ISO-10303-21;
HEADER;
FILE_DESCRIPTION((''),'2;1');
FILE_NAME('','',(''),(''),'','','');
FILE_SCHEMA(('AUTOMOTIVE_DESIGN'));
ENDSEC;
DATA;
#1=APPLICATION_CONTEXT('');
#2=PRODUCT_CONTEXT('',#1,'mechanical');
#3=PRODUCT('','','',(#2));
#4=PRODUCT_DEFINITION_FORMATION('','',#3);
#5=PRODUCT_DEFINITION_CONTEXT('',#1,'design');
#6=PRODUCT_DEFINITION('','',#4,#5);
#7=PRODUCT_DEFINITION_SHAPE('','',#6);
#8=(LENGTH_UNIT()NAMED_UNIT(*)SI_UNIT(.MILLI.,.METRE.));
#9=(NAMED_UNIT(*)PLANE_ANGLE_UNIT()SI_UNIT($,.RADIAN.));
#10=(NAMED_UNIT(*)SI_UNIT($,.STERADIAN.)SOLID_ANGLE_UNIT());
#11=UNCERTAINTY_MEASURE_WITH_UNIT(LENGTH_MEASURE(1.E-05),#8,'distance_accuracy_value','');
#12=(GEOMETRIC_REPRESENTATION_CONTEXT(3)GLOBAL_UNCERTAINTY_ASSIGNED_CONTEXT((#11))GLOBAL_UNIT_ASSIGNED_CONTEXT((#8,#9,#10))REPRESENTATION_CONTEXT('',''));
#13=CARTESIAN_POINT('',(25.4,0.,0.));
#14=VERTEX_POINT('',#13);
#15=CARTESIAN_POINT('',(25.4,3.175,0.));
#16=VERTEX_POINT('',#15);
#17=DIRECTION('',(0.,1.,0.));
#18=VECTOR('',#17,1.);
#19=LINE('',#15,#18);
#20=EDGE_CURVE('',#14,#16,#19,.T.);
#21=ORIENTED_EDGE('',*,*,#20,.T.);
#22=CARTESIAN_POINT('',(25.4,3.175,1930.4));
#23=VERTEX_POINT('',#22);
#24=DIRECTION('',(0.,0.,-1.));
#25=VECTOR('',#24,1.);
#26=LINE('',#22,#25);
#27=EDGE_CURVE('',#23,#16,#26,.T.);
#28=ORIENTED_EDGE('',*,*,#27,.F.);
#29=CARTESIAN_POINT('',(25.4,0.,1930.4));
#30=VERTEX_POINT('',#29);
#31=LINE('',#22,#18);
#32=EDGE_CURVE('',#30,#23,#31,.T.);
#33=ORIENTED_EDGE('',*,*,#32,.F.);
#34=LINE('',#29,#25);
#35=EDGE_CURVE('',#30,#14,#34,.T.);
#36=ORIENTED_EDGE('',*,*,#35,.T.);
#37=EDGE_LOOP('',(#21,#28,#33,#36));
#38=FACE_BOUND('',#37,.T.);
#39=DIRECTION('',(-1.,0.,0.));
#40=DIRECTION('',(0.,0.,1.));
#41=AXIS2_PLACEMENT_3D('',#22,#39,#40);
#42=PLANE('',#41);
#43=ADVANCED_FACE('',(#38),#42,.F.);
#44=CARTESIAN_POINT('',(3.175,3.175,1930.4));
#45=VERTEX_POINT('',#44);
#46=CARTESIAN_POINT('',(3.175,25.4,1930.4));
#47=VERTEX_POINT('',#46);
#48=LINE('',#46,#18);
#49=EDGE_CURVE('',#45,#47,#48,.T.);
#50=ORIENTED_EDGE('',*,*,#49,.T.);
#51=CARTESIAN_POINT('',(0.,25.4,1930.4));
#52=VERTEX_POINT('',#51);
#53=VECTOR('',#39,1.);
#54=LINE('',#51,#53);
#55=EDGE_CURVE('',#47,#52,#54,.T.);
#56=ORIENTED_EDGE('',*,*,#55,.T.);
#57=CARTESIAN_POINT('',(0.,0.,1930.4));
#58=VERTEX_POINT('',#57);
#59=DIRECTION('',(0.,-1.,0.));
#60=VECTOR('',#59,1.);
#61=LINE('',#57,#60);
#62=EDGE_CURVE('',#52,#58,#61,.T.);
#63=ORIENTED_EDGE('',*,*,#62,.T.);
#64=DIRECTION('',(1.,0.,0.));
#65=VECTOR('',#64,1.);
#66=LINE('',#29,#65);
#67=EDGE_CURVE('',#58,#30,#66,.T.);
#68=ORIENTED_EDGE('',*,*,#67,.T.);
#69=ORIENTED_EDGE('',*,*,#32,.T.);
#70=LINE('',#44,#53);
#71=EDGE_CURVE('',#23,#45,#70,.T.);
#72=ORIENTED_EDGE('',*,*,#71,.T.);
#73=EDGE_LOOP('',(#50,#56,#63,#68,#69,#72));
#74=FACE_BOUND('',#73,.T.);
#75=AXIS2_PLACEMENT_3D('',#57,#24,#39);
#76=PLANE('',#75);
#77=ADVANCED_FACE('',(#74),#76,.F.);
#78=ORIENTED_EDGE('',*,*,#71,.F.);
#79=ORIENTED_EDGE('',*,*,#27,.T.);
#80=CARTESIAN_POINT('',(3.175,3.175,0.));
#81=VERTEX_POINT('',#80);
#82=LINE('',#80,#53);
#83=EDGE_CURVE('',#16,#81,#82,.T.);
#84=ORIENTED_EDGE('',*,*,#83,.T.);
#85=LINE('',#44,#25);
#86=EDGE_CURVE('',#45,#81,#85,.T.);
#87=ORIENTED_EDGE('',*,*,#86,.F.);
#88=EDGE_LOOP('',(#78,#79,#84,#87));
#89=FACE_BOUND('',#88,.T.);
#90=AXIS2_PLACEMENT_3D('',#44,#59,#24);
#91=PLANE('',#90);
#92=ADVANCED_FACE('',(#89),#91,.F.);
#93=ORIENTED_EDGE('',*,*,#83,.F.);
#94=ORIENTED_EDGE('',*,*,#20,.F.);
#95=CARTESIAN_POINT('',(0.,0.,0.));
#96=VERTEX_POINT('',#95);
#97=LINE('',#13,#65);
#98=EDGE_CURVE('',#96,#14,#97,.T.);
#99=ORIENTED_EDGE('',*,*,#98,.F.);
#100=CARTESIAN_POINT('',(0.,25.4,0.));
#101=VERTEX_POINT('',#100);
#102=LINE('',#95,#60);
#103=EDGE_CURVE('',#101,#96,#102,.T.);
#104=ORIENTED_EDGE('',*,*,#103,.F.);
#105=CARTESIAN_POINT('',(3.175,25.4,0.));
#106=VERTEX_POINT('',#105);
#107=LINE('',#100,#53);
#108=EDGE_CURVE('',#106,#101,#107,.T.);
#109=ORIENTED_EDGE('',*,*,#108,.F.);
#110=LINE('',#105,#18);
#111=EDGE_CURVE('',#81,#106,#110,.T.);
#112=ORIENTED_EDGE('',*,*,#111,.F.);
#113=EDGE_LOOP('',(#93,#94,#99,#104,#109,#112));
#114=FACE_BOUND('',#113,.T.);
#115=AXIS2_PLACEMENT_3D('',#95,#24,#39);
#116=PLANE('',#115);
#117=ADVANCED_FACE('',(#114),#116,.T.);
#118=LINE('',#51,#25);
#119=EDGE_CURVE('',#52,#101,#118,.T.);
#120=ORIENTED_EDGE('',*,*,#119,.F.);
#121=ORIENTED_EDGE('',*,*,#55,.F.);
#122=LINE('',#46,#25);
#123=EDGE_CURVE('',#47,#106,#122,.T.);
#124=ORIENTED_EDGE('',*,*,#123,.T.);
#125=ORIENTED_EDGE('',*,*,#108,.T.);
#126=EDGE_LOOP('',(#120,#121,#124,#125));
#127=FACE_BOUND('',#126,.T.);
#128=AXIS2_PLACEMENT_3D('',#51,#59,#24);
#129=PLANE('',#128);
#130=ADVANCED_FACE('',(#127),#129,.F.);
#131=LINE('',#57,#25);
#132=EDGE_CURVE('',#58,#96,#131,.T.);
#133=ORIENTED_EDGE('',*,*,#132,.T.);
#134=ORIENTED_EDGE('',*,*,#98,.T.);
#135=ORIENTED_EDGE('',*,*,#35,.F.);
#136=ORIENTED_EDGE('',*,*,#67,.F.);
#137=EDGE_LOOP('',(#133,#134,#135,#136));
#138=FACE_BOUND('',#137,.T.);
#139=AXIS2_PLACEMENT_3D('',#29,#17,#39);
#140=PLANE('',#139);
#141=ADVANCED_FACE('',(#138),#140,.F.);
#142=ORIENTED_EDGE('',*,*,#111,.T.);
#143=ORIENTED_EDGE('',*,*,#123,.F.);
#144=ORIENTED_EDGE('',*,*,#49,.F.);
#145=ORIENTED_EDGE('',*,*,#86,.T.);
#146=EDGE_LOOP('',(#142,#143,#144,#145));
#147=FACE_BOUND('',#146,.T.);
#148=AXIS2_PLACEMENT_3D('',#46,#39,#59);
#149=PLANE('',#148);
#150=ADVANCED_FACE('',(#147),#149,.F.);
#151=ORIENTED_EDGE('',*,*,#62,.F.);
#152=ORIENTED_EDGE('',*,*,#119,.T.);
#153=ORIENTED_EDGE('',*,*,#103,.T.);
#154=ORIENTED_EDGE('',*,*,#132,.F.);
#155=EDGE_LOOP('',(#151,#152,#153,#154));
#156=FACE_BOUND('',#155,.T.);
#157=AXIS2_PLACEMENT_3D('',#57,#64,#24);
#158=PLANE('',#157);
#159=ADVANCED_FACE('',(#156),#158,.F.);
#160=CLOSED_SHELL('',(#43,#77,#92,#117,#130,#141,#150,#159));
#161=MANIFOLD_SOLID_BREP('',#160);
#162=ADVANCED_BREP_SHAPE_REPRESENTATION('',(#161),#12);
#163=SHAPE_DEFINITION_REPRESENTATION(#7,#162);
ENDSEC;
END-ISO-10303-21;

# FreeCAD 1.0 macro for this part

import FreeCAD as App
import Part
import Sketcher
Q = App.Units.Quantity

doc = App.newDocument("Part")
body = doc.addObject("PartDesign::Body", "Body")

sketch1 = doc.addObject("Sketcher::SketchObject", "Sketch")
body.addObject(sketch1)
sketch1.AttachmentSupport = (doc.XY_Plane, [""])
sketch1.MapMode = "FlatFace"
sketch1.addGeometry([
    Part.LineSegment(App.Vector(0, 25.4, 0), App.Vector(0, 0, 0)),
    Part.LineSegment(App.Vector(0, 0, 0), App.Vector(25.4, 0, 0)),
    Part.LineSegment(App.Vector(25.4, 0, 0), App.Vector(25.4, 3.2, 0)),
    Part.LineSegment(App.Vector(25.4, 3.2, 0), App.Vector(3.2, 3.2, 0)),
    Part.LineSegment(App.Vector(3.2, 3.2, 0), App.Vector(3.2, 25.4, 0)),
    Part.LineSegment(App.Vector(3.2, 25.4, 0), App.Vector(0, 25.4, 0)),
], False)
sketch1.addConstraint([
    Sketcher.Constraint("Coincident", 0, 2, 1, 1),
    Sketcher.Constraint("Coincident", 1, 2, 2, 1),
    Sketcher.Constraint("Coincident", 2, 2, 3, 1),
    Sketcher.Constraint("Coincident", 3, 2, 4, 1),
    Sketcher.Constraint("Coincident", 4, 2, 5, 1),
    Sketcher.Constraint("Coincident", 5, 2, 0, 1),
    Sketcher.Constraint("Vertical", 0),
    Sketcher.Constraint("Horizontal", 1),
    Sketcher.Constraint("Vertical", 2),
    Sketcher.Constraint("Horizontal", 3),
    Sketcher.Constraint("Vertical", 4),
    Sketcher.Constraint("Horizontal", 5),
    Sketcher.Constraint("Coincident", 0, 2, -1, 1),
    Sketcher.Constraint("Equal", 1, 0),
    Sketcher.Constraint("Equal", 5, 2),
    Sketcher.Constraint("DistanceX", 1, 1, 1, 2, Q("1 in")),
    Sketcher.Constraint("DistanceX", 3, 2, 3, 1, Q("0.875 in")),
])
pad1 = doc.addObject("PartDesign::Pad", "Pad")
body.addObject(pad1)
pad1.Profile = sketch1
pad1.Length = Q("76 in")

doc.recompute()
